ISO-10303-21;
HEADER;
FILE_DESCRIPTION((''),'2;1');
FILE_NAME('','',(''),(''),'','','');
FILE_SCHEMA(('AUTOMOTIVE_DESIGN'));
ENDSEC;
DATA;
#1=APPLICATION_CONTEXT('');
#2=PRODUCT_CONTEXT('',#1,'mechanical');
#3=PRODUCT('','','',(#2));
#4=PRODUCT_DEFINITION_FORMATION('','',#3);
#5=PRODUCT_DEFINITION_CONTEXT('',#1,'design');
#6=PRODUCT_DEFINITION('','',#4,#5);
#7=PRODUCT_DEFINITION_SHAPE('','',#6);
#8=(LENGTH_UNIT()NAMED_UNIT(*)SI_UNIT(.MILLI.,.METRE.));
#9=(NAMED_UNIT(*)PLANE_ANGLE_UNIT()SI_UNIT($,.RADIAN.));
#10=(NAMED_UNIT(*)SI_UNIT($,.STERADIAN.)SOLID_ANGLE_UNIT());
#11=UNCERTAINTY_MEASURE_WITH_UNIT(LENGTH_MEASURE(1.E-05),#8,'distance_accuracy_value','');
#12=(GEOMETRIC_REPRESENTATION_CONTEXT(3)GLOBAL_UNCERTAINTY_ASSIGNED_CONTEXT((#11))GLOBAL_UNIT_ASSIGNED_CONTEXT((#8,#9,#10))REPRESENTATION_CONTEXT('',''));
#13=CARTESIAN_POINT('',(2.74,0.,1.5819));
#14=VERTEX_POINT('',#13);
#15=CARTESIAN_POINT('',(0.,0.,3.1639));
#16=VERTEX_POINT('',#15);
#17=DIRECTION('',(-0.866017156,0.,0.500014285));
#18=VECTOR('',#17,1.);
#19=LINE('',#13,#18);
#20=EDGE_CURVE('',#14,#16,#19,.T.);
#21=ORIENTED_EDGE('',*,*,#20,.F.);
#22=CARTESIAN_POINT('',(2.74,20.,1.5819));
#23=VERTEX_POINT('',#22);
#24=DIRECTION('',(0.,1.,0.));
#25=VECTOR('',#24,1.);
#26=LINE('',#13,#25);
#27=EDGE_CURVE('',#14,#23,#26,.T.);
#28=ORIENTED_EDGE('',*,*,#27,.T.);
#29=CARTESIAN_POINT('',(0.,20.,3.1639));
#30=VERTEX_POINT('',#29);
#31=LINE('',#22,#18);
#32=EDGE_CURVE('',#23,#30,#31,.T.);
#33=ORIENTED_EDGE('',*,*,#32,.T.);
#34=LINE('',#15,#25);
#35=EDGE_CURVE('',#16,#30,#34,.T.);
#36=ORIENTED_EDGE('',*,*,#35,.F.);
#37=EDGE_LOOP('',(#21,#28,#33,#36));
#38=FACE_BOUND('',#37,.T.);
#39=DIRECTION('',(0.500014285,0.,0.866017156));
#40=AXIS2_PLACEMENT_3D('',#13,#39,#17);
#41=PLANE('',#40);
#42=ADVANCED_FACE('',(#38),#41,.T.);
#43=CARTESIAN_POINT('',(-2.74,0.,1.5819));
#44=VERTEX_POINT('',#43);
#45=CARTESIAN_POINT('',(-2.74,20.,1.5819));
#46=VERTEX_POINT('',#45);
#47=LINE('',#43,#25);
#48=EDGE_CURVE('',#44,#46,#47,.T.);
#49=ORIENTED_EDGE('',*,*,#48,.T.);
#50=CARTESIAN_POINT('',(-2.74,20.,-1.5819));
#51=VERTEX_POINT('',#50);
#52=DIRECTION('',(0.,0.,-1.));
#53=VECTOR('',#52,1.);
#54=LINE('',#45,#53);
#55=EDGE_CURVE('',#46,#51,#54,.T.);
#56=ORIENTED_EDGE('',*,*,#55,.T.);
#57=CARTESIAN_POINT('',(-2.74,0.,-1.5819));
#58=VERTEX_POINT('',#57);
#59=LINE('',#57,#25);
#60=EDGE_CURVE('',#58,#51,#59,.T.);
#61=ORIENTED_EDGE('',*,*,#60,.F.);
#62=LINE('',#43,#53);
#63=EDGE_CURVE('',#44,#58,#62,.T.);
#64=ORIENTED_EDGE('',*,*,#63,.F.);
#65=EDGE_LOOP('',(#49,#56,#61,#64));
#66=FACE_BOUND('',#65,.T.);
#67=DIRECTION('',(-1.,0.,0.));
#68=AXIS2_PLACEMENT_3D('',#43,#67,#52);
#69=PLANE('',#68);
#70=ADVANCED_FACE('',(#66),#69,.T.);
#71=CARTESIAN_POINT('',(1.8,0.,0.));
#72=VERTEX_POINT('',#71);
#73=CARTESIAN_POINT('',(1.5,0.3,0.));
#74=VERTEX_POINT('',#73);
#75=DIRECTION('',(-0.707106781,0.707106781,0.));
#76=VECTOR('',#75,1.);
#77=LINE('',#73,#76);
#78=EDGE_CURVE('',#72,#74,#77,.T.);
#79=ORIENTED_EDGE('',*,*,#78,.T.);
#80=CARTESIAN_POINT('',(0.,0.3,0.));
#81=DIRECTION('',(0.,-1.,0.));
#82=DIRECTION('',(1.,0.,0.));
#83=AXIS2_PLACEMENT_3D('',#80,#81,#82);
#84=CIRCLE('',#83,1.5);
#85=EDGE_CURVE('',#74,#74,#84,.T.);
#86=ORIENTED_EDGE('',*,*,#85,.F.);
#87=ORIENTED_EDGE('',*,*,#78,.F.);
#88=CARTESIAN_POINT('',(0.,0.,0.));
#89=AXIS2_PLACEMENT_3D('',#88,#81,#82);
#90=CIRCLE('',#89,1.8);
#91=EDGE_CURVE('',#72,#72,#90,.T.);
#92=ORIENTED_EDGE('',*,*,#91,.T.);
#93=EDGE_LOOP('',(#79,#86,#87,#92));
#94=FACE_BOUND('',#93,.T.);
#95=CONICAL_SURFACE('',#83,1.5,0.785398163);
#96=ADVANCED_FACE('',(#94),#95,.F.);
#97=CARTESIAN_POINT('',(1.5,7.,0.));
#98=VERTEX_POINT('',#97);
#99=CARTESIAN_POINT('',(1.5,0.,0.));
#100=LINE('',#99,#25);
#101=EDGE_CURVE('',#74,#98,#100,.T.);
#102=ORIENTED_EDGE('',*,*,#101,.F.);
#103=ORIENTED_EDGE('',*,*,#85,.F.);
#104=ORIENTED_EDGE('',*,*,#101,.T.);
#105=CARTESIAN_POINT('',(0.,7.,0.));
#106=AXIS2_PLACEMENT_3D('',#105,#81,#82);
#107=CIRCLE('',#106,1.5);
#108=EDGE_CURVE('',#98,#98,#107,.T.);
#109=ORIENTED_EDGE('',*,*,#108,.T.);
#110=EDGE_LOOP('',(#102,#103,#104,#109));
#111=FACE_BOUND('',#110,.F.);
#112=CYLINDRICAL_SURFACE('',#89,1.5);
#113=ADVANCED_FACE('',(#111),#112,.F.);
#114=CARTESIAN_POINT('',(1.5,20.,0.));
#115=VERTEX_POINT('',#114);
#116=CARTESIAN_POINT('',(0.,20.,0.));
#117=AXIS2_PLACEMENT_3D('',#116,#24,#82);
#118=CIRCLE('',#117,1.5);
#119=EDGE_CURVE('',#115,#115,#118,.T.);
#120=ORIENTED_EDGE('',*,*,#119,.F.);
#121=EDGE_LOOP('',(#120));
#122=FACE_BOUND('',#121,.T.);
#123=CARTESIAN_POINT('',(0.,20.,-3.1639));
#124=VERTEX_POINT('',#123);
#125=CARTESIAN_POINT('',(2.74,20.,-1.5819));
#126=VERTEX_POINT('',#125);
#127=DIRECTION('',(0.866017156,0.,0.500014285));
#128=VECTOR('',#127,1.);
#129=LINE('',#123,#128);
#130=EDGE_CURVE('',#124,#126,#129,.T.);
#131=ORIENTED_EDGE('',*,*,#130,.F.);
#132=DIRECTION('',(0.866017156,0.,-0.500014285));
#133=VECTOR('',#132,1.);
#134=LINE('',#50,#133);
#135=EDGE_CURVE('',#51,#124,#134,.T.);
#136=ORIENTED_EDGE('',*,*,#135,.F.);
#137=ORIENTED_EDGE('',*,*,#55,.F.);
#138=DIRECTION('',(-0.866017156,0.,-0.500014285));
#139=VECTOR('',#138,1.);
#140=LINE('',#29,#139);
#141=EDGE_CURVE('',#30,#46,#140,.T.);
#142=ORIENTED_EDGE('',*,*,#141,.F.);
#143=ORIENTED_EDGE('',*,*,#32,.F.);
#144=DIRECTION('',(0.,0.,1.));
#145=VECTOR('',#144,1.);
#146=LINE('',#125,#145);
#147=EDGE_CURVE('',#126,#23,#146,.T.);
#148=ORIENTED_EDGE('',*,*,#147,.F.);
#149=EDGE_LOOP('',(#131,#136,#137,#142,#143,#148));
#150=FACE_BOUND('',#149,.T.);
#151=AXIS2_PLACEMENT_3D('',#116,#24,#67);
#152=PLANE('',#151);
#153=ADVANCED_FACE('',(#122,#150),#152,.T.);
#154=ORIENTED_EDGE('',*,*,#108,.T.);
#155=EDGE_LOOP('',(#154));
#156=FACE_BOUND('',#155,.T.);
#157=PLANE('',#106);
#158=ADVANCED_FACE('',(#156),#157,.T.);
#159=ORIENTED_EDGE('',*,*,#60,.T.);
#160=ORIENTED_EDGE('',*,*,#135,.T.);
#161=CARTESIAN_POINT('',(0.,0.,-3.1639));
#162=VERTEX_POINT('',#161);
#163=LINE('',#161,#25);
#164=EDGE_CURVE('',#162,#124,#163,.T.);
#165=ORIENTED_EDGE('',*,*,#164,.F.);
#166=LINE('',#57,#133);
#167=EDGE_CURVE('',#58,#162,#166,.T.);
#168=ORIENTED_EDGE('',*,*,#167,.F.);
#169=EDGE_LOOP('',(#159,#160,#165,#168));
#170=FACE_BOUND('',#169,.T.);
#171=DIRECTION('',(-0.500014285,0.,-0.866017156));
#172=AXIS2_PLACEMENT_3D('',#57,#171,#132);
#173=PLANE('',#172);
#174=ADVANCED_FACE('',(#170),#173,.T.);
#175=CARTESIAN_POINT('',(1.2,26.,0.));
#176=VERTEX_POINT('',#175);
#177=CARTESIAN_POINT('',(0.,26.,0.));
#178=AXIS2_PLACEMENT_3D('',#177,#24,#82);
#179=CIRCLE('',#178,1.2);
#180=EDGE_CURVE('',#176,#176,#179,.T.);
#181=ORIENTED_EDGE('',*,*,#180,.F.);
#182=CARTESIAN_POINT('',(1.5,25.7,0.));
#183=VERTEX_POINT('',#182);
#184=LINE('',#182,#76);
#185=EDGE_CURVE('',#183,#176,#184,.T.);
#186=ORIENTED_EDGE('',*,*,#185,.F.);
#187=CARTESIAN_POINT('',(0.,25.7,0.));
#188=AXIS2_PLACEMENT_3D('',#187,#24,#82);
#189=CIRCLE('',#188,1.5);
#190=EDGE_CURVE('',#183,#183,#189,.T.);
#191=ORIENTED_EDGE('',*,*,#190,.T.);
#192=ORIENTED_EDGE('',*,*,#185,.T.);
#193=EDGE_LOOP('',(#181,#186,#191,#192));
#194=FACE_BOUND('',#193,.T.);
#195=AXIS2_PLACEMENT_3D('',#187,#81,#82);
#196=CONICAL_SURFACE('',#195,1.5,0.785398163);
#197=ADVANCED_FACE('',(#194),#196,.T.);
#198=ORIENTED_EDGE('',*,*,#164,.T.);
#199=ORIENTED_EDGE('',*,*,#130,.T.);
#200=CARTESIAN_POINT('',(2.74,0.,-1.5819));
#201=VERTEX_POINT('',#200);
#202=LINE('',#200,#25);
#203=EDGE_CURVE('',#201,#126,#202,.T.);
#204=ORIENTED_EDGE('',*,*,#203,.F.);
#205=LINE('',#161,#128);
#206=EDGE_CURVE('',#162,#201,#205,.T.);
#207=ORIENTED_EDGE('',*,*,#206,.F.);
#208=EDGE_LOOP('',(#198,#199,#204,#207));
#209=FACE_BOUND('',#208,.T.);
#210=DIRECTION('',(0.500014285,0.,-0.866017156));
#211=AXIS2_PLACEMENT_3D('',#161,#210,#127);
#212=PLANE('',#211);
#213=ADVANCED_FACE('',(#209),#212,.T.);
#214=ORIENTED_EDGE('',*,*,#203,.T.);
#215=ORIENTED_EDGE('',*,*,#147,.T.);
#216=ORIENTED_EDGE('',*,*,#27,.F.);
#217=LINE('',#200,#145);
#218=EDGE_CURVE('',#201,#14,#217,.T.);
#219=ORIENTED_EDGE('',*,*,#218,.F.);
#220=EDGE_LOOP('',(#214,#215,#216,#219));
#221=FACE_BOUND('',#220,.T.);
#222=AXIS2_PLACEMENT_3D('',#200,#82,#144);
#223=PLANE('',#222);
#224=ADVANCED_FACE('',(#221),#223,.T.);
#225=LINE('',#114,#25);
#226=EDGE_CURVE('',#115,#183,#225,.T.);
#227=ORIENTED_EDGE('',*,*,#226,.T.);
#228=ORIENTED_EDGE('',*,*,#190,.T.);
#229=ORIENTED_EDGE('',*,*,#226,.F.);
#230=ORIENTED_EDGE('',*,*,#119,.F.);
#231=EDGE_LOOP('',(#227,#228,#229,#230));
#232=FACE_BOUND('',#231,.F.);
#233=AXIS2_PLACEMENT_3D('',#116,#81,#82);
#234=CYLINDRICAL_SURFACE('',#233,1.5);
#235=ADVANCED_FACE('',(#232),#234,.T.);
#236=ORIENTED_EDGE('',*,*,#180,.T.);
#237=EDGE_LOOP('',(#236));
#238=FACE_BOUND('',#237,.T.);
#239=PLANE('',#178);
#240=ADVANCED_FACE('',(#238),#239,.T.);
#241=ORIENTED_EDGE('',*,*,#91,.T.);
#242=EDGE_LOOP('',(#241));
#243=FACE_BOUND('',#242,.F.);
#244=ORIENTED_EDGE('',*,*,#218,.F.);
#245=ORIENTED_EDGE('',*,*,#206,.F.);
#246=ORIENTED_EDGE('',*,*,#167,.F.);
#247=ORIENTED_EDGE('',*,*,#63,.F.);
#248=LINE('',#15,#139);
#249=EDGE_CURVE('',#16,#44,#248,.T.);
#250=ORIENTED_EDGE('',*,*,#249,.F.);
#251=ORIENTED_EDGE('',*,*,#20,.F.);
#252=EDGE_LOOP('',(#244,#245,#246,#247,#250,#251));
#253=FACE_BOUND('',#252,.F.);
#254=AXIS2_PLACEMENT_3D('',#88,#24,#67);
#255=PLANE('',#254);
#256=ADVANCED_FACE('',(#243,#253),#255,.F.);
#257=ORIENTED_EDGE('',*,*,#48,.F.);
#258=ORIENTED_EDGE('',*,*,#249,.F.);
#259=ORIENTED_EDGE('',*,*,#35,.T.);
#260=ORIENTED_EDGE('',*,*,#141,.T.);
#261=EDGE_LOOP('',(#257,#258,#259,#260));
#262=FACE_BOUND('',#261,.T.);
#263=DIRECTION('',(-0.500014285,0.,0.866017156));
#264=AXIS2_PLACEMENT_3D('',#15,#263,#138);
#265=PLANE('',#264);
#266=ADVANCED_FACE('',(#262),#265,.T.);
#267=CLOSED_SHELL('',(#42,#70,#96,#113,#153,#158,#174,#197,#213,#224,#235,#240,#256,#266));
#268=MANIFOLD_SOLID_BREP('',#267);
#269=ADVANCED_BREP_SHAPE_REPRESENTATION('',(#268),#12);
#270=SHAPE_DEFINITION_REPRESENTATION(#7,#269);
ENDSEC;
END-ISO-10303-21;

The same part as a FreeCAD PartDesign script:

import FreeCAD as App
import Part
import Sketcher

V = App.Vector
Q = App.Units.Quantity


def edges_at(feature, points):
    """Names of the edges that pass closest to the given points."""
    edges = feature.Shape.Edges
    near = lambda p: min(range(len(edges)), key=lambda i: edges[i].distToShape(Part.Vertex(*p))[0])
    return sorted({f"Edge{near(p) + 1}" for p in points})


def add_polygon(sketch, points):
    """Adds a closed chain of lines whose ends are joined by coincident constraints."""
    first, n = sketch.GeometryCount, len(points)
    for a, b in zip(points, points[1:] + points[:1]):
        sketch.addGeometry(Part.LineSegment(App.Vector(*a, 0), App.Vector(*b, 0)), False)
    for i in range(n):
        sketch.addConstraint(Sketcher.Constraint("Coincident", first + i, 2, first + (i + 1) % n, 1))

doc = App.newDocument("Part")
body = doc.addObject("PartDesign::Body", "Body")

# Sketch on XZ plane
sketch1 = doc.addObject("Sketcher::SketchObject", "Sketch")
body.addObject(sketch1)
sketch1.AttachmentSupport = (doc.XZ_Plane, [""])
sketch1.MapMode = "FlatFace"
add_polygon(sketch1, [(-2.7, 1.6), (0, 3.2), (2.7, 1.6), (2.7, -1.6), (0, -3.2), (-2.7, -1.6)])  # lines 0-5
sketch1.addConstraint([
    Sketcher.Constraint("Vertical", 2),
    Sketcher.Constraint("Vertical", 5),
    Sketcher.Constraint("Symmetric", 0, 2, 3, 2, -1, 1),
    Sketcher.Constraint("Symmetric", 1, 2, 4, 2, -1, 1),
    Sketcher.Constraint("PointOnObject", 0, 2, -2),
    Sketcher.Constraint("Parallel", 0, 3),
    Sketcher.Constraint("Horizontal", 2, 2, 4, 2),
    Sketcher.Constraint("Angle", 0, Q("30.001 deg")),
    Sketcher.Constraint("DistanceX", 4, 2, 2, 2, 5.48),
    Sketcher.Constraint("DistanceY", 2, 2, 2, 1, 3.1638),
])
pad1 = doc.addObject("PartDesign::Pad", "Pad")
body.addObject(pad1)
pad1.Profile = sketch1
pad1.Length = 20
pad1.Reversed = True

# Sketch on XZ plane
sketch2 = doc.addObject("Sketcher::SketchObject", "Sketch001")
body.addObject(sketch2)
sketch2.AttachmentSupport = (doc.XZ_Plane, [""])
sketch2.MapMode = "FlatFace"
sketch2.AttachmentOffset = App.Placement(V(0, 0, -20), App.Rotation())
sketch2.addGeometry(Part.Circle(V(0, 0, 0), V(0, 0, 1), 1.5), False)
sketch2.addConstraint([
    Sketcher.Constraint("Coincident", 0, 3, -1, 1),
    Sketcher.Constraint("Diameter", 0, 3.0),
])
pad2 = doc.addObject("PartDesign::Pad", "Pad001")
body.addObject(pad2)
pad2.Profile = sketch2
pad2.Length = 6
pad2.Reversed = True
doc.recompute()

chamfer = doc.addObject("PartDesign::Chamfer", "Chamfer")
body.addObject(chamfer)
chamfer.Base = (pad2, edges_at(pad2, [(-1.5, 26, 0)]))
chamfer.Size = 0.3

# Sketch on XZ plane
sketch3 = doc.addObject("Sketcher::SketchObject", "Sketch002")
body.addObject(sketch3)
sketch3.AttachmentSupport = (doc.XZ_Plane, [""])
sketch3.MapMode = "FlatFace"
sketch3.addGeometry(Part.Circle(V(0, 0, 0), V(0, 0, 1), 1.5), False)
sketch3.addConstraint([
    Sketcher.Constraint("Coincident", 0, 3, -1, 1),
    Sketcher.Constraint("Diameter", 0, 3.0),
])
pocket1 = doc.addObject("PartDesign::Pocket", "Pocket")
body.addObject(pocket1)
pocket1.Profile = sketch3
pocket1.Length = 7
doc.recompute()

chamfer2 = doc.addObject("PartDesign::Chamfer", "Chamfer001")
body.addObject(chamfer2)
chamfer2.Base = (pocket1, edges_at(pocket1, [(-1.5, 0, 0)]))
chamfer2.Size = 0.3

doc.recompute()
